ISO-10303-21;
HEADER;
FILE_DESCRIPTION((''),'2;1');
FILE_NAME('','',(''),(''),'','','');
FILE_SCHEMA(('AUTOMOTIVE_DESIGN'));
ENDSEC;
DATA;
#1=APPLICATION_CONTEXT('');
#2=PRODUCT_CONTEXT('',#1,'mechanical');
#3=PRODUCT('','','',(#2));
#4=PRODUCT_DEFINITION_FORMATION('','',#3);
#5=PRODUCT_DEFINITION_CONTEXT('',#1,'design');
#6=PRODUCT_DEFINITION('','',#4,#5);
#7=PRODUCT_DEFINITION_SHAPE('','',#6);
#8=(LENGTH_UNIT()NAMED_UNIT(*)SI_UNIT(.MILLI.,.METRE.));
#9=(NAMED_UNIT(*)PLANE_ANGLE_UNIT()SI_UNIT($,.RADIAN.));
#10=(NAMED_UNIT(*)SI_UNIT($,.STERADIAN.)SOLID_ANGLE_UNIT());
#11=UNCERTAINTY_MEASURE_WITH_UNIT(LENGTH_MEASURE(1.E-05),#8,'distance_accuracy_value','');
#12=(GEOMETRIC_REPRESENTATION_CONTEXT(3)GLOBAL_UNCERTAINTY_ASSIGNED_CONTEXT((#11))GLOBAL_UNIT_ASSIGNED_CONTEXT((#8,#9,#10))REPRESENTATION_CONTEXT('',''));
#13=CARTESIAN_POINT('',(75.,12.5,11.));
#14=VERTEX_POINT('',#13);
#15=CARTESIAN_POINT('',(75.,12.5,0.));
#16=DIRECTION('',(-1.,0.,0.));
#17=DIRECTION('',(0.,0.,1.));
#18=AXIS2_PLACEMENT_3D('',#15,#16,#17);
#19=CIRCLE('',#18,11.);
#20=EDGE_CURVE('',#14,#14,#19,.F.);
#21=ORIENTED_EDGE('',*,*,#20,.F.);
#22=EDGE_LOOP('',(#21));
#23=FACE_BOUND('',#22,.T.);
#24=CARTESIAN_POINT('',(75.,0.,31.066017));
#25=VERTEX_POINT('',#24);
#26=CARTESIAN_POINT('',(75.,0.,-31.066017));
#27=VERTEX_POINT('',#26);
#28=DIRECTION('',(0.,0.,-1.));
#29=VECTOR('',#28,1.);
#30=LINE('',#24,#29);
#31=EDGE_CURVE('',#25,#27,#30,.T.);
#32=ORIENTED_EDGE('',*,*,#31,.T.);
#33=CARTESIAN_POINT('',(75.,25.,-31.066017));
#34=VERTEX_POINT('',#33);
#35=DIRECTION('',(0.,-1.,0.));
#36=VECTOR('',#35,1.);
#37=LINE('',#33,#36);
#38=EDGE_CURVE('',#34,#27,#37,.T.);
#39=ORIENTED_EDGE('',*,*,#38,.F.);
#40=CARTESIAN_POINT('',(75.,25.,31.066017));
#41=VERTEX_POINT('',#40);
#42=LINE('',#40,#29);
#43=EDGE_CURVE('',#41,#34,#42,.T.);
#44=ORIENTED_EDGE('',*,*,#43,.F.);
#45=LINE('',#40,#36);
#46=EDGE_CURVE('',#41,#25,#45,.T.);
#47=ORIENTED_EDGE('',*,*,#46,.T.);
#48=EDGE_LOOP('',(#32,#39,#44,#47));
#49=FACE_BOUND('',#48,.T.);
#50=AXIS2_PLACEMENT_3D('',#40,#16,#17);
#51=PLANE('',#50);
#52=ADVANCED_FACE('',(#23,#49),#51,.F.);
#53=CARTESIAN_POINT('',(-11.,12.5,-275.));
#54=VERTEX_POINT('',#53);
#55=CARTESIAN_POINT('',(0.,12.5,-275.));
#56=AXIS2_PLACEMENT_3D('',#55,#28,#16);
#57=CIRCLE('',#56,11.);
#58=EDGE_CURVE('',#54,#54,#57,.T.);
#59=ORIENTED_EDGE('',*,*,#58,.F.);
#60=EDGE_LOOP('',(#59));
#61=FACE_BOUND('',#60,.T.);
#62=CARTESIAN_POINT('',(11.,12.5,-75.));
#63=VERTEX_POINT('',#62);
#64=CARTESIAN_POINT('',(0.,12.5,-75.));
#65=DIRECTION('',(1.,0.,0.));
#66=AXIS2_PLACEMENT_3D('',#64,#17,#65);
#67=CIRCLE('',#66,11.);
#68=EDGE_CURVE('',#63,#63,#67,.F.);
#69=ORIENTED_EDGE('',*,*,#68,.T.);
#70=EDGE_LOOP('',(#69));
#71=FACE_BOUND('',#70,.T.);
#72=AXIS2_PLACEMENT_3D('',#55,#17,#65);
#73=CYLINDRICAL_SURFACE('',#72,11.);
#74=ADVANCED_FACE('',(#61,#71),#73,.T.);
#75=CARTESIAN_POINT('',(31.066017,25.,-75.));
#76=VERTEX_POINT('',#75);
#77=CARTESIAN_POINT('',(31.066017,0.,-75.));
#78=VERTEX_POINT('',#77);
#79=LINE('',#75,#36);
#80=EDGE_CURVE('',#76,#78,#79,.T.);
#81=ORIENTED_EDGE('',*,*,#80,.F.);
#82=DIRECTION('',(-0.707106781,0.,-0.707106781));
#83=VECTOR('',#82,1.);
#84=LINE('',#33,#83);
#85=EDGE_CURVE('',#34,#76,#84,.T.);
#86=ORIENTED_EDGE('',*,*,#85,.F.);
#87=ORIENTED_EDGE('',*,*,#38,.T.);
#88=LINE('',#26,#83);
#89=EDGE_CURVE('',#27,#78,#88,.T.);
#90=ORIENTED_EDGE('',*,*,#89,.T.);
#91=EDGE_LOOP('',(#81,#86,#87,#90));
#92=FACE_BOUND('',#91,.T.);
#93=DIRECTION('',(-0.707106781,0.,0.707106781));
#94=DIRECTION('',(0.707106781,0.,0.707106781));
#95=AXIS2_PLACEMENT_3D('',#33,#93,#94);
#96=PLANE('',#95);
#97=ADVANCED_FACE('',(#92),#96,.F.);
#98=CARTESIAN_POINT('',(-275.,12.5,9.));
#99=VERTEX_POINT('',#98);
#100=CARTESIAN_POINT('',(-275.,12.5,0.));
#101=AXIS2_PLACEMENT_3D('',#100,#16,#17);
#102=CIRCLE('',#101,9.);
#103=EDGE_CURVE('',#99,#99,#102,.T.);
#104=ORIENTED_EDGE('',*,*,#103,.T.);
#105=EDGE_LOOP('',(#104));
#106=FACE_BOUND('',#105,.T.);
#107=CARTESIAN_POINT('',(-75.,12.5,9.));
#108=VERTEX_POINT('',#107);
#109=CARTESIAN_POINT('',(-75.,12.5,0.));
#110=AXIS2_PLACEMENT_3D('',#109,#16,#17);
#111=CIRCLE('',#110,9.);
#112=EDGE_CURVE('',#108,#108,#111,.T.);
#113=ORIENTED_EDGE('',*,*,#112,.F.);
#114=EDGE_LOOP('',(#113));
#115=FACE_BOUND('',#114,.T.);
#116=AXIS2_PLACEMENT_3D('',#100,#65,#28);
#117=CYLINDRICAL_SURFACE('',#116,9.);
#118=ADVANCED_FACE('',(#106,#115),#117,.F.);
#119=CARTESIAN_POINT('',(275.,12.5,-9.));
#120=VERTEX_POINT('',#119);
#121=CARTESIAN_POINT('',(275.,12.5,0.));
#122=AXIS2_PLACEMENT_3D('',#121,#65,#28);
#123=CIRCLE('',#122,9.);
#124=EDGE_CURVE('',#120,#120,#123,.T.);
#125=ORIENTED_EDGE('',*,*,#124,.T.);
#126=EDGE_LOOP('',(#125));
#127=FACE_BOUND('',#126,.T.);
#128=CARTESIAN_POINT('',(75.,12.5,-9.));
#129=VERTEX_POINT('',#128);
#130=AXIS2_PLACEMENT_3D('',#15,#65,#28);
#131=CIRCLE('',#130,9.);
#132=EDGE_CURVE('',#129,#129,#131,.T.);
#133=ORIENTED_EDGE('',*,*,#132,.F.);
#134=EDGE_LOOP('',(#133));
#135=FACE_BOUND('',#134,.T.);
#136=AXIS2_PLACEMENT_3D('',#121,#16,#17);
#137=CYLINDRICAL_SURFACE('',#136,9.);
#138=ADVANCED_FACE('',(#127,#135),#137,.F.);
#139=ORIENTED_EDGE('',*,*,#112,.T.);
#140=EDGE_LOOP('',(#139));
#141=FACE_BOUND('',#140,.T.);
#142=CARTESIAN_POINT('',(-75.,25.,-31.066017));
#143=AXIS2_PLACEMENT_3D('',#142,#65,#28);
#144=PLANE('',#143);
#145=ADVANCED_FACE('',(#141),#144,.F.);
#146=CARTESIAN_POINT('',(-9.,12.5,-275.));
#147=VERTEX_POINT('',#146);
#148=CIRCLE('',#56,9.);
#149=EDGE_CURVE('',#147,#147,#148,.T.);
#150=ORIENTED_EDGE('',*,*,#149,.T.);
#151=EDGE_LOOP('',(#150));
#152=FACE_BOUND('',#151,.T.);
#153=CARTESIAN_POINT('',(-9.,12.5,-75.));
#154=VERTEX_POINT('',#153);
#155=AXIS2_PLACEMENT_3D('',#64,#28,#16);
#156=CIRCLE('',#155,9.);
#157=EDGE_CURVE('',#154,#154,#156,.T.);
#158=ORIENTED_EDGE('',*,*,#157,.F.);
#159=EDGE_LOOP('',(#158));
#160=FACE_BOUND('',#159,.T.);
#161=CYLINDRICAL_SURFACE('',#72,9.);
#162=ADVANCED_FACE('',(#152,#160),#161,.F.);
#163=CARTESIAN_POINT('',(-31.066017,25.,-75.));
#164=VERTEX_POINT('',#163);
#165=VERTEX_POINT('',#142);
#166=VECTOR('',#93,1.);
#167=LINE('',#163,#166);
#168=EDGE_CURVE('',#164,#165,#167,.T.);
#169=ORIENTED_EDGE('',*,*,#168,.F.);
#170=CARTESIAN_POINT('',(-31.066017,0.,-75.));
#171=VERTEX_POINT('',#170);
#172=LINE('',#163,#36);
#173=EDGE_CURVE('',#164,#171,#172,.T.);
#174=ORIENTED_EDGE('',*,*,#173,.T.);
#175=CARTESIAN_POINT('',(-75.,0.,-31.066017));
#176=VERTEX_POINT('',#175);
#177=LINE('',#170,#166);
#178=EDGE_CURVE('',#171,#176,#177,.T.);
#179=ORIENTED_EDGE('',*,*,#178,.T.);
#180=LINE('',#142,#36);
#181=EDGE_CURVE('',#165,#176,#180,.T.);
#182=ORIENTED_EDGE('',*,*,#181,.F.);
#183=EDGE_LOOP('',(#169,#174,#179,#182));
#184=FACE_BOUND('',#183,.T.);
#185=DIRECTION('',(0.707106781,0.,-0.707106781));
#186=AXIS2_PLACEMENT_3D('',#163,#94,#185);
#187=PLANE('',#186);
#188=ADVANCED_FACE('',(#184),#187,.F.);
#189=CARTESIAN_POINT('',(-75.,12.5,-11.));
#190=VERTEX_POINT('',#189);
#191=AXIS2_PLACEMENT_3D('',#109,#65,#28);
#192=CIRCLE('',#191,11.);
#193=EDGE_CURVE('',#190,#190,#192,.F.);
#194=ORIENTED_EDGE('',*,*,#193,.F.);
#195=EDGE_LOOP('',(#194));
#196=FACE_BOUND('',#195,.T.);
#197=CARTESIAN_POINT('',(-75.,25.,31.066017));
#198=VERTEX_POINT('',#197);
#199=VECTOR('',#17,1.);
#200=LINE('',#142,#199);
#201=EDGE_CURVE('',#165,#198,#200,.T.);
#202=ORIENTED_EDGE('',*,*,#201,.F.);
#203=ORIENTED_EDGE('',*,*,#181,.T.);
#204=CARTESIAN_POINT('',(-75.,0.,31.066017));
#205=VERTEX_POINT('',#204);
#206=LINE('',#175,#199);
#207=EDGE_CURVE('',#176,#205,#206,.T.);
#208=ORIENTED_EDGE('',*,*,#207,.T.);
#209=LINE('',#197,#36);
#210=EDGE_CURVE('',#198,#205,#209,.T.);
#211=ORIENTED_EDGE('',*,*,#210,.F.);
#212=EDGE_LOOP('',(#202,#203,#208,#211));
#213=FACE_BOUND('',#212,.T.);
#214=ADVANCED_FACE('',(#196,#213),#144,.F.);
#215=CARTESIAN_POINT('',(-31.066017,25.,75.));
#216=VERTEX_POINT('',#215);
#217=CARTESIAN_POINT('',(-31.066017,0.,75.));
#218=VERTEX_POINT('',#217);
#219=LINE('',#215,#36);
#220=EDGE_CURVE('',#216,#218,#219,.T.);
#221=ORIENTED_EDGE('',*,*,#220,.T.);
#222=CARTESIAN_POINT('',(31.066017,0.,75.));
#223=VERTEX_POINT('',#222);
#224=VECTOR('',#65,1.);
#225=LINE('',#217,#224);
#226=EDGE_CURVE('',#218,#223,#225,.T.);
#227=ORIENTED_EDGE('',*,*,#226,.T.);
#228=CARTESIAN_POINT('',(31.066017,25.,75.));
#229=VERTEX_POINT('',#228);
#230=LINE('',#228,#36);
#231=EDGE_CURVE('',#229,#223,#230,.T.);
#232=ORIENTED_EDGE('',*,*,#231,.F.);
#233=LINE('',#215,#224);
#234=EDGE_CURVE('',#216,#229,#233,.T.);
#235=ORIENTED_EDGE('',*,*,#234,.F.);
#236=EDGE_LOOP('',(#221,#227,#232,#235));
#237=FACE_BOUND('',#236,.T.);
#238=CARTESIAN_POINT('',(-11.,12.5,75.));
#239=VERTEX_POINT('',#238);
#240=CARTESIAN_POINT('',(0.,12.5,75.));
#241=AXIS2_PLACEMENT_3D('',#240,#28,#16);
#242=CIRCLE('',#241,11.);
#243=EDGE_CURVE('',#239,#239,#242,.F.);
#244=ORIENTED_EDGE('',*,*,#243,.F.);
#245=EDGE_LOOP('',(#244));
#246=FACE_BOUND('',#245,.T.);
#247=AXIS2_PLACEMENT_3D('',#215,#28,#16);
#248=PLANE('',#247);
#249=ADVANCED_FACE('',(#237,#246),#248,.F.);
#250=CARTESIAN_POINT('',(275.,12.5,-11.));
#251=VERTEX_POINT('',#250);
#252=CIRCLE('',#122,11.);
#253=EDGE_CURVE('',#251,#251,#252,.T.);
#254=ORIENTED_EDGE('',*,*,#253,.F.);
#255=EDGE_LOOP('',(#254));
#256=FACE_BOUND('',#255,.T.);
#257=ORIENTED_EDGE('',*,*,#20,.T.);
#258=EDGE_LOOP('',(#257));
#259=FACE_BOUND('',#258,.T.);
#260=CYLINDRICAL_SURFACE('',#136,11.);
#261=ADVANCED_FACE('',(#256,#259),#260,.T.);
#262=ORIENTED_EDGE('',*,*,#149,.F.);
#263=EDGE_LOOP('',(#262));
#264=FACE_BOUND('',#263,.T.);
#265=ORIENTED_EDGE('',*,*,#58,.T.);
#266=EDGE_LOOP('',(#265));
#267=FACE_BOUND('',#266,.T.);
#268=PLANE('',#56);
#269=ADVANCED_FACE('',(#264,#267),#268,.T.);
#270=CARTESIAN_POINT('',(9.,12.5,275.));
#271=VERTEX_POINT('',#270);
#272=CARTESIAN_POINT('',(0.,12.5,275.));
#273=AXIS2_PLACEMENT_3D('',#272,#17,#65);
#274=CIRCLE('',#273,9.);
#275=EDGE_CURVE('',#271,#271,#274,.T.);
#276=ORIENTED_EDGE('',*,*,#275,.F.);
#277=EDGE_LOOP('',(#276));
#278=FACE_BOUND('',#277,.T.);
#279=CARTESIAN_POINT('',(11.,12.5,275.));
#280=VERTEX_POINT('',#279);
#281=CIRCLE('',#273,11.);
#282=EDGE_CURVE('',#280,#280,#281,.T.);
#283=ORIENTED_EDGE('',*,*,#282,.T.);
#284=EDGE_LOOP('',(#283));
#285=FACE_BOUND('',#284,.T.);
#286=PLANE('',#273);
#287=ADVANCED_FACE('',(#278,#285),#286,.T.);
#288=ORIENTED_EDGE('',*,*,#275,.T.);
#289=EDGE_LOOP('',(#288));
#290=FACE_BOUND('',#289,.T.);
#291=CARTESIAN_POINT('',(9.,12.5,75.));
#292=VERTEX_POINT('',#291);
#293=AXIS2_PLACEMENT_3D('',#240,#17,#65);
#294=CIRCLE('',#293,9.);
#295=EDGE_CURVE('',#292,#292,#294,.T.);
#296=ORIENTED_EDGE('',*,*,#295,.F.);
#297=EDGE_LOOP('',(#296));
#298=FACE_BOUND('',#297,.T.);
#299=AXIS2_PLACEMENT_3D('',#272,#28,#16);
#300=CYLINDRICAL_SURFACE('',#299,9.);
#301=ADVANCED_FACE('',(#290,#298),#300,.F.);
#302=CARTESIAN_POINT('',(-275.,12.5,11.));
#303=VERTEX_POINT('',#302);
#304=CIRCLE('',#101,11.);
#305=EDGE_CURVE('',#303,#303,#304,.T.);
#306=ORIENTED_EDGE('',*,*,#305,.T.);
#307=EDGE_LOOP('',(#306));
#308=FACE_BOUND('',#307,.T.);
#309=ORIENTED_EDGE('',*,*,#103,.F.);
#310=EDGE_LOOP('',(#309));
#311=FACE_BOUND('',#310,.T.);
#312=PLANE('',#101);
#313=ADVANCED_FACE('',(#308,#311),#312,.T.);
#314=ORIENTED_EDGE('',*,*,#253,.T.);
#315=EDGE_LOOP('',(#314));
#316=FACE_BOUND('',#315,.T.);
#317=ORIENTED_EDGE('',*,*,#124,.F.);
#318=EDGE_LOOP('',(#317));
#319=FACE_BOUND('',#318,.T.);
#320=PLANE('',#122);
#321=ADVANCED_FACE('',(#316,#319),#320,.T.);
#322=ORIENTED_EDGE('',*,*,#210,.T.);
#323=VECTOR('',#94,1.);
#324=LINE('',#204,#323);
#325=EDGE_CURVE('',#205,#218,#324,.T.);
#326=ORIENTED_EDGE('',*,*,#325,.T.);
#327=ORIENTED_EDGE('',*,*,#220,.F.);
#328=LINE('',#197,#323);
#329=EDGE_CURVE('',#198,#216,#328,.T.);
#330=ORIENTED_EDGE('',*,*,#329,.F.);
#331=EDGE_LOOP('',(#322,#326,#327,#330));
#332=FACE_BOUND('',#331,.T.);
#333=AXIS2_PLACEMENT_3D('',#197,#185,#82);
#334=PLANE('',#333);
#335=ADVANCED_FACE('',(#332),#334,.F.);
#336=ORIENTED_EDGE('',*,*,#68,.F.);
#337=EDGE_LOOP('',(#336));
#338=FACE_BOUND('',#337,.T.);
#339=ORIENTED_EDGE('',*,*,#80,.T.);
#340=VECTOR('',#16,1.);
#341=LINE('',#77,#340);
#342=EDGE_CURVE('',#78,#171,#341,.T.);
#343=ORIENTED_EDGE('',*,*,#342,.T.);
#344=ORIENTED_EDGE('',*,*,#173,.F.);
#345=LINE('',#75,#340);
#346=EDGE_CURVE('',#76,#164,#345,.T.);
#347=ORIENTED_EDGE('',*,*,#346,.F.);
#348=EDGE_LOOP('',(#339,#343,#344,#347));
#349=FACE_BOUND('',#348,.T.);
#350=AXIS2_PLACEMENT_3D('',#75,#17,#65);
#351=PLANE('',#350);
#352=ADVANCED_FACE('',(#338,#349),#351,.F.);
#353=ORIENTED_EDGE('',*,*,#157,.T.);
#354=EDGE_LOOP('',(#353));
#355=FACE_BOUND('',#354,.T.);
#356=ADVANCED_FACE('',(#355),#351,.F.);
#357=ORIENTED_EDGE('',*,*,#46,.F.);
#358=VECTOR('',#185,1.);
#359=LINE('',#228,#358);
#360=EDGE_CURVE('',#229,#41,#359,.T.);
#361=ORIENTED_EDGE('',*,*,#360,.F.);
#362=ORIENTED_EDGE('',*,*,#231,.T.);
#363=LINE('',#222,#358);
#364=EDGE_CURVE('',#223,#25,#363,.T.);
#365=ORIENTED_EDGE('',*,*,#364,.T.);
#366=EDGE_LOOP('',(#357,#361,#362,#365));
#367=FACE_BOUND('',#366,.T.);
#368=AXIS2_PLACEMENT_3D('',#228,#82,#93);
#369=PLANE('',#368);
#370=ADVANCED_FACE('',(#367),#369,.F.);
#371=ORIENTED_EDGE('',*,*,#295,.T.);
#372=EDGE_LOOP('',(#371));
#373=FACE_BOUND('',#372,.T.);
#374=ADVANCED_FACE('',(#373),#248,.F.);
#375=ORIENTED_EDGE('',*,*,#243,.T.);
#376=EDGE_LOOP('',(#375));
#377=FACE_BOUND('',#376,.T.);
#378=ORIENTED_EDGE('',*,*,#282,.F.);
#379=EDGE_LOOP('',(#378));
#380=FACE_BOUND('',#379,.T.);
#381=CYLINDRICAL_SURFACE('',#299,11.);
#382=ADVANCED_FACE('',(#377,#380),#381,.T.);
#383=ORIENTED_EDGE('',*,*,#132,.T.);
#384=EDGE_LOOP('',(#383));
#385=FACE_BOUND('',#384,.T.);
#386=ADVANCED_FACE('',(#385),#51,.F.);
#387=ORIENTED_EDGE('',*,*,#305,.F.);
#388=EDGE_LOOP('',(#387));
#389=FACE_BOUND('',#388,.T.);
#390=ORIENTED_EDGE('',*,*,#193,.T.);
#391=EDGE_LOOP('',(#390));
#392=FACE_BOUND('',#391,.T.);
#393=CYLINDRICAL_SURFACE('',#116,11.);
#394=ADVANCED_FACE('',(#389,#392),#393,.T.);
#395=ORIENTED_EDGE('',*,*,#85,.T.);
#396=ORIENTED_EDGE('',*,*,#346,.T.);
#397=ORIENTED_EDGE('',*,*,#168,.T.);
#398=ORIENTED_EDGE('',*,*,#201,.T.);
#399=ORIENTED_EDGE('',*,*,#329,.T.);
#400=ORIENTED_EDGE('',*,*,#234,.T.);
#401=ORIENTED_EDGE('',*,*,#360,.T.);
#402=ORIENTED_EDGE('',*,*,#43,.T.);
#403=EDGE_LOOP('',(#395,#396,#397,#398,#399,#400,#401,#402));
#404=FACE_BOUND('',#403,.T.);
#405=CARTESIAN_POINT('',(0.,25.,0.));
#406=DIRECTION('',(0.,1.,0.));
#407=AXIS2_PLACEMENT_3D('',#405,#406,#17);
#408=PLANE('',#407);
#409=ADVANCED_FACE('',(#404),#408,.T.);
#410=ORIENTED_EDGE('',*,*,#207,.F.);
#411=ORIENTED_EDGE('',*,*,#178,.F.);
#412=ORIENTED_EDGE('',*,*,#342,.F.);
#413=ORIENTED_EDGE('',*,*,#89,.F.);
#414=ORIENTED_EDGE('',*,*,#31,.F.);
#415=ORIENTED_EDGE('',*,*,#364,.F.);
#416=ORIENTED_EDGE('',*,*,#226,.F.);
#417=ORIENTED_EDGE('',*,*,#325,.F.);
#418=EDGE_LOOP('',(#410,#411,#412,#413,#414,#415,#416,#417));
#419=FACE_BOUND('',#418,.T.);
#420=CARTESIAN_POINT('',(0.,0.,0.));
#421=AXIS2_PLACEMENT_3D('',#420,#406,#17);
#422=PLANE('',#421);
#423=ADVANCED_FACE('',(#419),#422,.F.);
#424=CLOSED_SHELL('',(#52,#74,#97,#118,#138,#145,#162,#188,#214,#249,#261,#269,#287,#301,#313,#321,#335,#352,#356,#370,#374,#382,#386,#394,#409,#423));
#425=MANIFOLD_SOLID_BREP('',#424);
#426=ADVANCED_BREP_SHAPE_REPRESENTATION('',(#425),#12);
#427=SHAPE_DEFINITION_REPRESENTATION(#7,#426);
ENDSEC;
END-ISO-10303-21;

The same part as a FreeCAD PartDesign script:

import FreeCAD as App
import Part
import Sketcher

V = App.Vector


def add_polygon(sketch, points):
    """Adds a closed chain of lines whose ends are joined by coincident constraints."""
    first, n = sketch.GeometryCount, len(points)
    for a, b in zip(points, points[1:] + points[:1]):
        sketch.addGeometry(Part.LineSegment(App.Vector(*a, 0), App.Vector(*b, 0)), False)
    for i in range(n):
        sketch.addConstraint(Sketcher.Constraint("Coincident", first + i, 2, first + (i + 1) % n, 1))

doc = App.newDocument("Part")
params = doc.addObject("Spreadsheet::Sheet", "Params")
for row, (alias, value) in enumerate([
    ("pad1_length", "25 mm"),
    ("sketch2_diameter", "22 mm"),
    ("sketch2_diameter2", "18 mm"),
    ("pad2_length", "200 mm"),
], start=1):
    params.set(f"A{row}", alias)
    params.set(f"B{row}", "=" + value)
    params.setAlias(f"B{row}", alias)

body = doc.addObject("PartDesign::Body", "Body")

sketch1 = body.newObject("Sketcher::SketchObject", "Sketch")
sketch1.AttachmentSupport = (doc.getObject("XZ_Plane"), [""])
sketch1.MapMode = "FlatFace"
add_polygon(sketch1, [(-75, -31), (-75, 31), (-31, 75), (31, 75), (75, 31), (75, -31), (31, -75), (-31, -75)])
sketch1.addConstraint(Sketcher.Constraint("Vertical", 0))
sketch1.addConstraint(Sketcher.Constraint("Horizontal", 2))
sketch1.addConstraint(Sketcher.Constraint("Vertical", 4))
sketch1.addConstraint(Sketcher.Constraint("Horizontal", 6))
sketch1.addConstraint(Sketcher.Constraint("Symmetric", 0, 2, 4, 2, -1, 1))
sketch1.addConstraint(Sketcher.Constraint("Symmetric", 1, 2, 5, 2, -1, 1))
sketch1.addConstraint(Sketcher.Constraint("Perpendicular", 1, 3))
sketch1.addConstraint(Sketcher.Constraint("Perpendicular", 5, 7))
sketch1.addConstraint(Sketcher.Constraint("Horizontal", 0, 2, 3, 2))
sketch1.addConstraint(Sketcher.Constraint("Horizontal", 4, 2, 7, 2))
sketch1.addConstraint(Sketcher.Constraint("Vertical", 2, 2, 5, 2))
sketch1.addConstraint(Sketcher.Constraint("Equal", 6, 0))
sketch1.addConstraint(Sketcher.Constraint("DistanceX", 0, 2, -1, 1, 75.0))
sketch1.addConstraint(Sketcher.Constraint("DistanceX", 2, 1, 2, 2, 62.132034))
pad1 = body.newObject("PartDesign::Pad", "Pad")
pad1.Profile = sketch1
pad1.setExpression("Length", "Params.pad1_length")
pad1.Reversed = True

sketch2 = body.newObject("Sketcher::SketchObject", "Sketch001")
sketch2.AttachmentSupport = (doc.getObject("YZ_Plane"), [""])
sketch2.MapMode = "FlatFace"
sketch2.AttachmentOffset = App.Placement(V(0, 0, -75), App.Rotation())
sketch2.addGeometry(Part.Circle(V(12, 0, 0), V(0, 0, 1), 11), False)
sketch2.addGeometry(Part.Circle(V(12, 0, 0), V(0, 0, 1), 9), False)
sketch2.addConstraint(Sketcher.Constraint("Coincident", 1, 3, 0, 3))
sketch2.addConstraint(Sketcher.Constraint("PointOnObject", 0, 3, -1))
sketch2.addConstraint(Sketcher.Constraint("Diameter", 0, 22.0))
sketch2.addConstraint(Sketcher.Constraint("Diameter", 1, 18.0))
sketch2.addConstraint(Sketcher.Constraint("DistanceX", -1, 1, 0, 3, 12.5))
sketch2.setExpression("Constraints[2]", "Params.sketch2_diameter")
sketch2.setExpression("Constraints[3]", "Params.sketch2_diameter2")
pad2 = body.newObject("PartDesign::Pad", "Pad001")
pad2.Profile = sketch2
pad2.setExpression("Length", "Params.pad2_length")
pad2.Reversed = True
doc.recompute()

polarpattern = body.newObject("PartDesign::PolarPattern", "PolarPattern")
polarpattern.Originals = [pad2]
polarpattern.Axis = (doc.getObject("Y_Axis"), [""])
polarpattern.Angle = 360
polarpattern.Occurrences = 4
body.Tip = polarpattern

doc.recompute()
